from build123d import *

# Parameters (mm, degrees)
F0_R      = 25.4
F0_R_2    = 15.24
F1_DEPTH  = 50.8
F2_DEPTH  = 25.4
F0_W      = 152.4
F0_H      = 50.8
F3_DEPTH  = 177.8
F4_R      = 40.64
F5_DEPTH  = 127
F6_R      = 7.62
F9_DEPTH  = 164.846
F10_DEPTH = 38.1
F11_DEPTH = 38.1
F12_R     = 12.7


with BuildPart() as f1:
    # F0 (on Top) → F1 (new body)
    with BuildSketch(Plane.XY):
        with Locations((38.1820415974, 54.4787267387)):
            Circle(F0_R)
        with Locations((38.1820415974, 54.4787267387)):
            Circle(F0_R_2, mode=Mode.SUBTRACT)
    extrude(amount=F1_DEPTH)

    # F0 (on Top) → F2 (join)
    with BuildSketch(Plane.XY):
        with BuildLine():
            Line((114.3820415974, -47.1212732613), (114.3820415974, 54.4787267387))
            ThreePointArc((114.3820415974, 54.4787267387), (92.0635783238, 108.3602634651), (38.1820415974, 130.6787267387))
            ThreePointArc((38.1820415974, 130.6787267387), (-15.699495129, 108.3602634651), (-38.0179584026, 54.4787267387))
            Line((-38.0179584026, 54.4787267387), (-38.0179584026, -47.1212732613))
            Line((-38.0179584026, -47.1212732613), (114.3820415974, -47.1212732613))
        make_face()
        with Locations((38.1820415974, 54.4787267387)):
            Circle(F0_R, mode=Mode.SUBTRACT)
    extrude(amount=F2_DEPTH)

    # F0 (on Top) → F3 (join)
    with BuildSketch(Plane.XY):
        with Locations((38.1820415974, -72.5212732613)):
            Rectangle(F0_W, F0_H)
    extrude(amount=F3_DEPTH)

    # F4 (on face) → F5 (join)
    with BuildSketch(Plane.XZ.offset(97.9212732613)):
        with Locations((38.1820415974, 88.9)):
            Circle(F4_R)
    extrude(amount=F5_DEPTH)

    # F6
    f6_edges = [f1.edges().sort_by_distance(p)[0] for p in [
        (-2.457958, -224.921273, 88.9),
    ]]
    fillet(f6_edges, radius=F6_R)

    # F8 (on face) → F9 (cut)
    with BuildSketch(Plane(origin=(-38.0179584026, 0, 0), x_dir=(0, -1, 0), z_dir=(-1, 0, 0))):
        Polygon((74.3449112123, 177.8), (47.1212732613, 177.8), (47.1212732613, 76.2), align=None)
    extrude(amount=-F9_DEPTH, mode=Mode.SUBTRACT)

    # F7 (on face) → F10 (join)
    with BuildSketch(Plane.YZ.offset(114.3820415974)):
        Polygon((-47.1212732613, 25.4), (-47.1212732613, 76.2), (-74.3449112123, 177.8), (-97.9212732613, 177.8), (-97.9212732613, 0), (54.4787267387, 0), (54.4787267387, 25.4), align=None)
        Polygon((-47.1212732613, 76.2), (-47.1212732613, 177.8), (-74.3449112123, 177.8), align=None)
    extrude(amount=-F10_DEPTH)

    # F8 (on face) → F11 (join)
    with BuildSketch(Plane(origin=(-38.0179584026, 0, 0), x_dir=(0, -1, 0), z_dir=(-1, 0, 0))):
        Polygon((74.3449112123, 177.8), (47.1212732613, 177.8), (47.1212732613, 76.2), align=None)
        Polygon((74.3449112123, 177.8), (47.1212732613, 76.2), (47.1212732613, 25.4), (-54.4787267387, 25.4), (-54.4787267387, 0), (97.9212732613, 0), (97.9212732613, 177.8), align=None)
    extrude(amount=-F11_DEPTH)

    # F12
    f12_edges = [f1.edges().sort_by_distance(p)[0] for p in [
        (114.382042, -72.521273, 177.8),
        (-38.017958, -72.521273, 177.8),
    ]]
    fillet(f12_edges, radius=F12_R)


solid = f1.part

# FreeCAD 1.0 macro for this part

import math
import FreeCAD as App
import Part
import Sketcher

V = App.Vector
Q = App.Units.Quantity


def edges_at(feature, points):
    """Names of the edges that pass closest to the given points."""
    edges = feature.Shape.Edges
    near = lambda p: min(range(len(edges)), key=lambda i: edges[i].distToShape(Part.Vertex(*p))[0])
    return sorted({f"Edge{near(p) + 1}" for p in points})


def add_polygon(sketch, points):
    """Adds a closed chain of lines whose ends are joined by coincident constraints."""
    first, n = sketch.GeometryCount, len(points)
    for a, b in zip(points, points[1:] + points[:1]):
        sketch.addGeometry(Part.LineSegment(App.Vector(*a, 0), App.Vector(*b, 0)), False)
    for i in range(n):
        sketch.addConstraint(Sketcher.Constraint("Coincident", first + i, 2, first + (i + 1) % n, 1))

doc = App.newDocument("Part")
body = doc.addObject("PartDesign::Body", "Body")

# Sketch on XY plane
sketch1 = doc.addObject("Sketcher::SketchObject", "Sketch")
body.addObject(sketch1)
sketch1.AttachmentSupport = (doc.XY_Plane, [""])
sketch1.MapMode = "FlatFace"
sketch1.addGeometry([
    Part.Circle(V(38.182042, 54.478727, 0), V(0, 0, 1), 25.4),
    Part.Circle(V(38.182042, 54.478727, 0), V(0, 0, 1), 15.24),
], False)
sketch1.addConstraint([
    Sketcher.Constraint("Coincident", 1, 3, 0, 3),
    Sketcher.Constraint("Diameter", 0, Q("2 in")),
    Sketcher.Constraint("Diameter", 1, Q("1.2 in")),
    Sketcher.Constraint("DistanceX", -1, 1, 0, 3, Q("38.182042 mm")),
    Sketcher.Constraint("DistanceY", -1, 1, 0, 3, Q("54.478727 mm")),
])
pad1 = doc.addObject("PartDesign::Pad", "Pad")
body.addObject(pad1)
pad1.Profile = sketch1
pad1.Length = Q("2 in")

# Sketch on XY plane
sketch2 = doc.addObject("Sketcher::SketchObject", "Sketch001")
body.addObject(sketch2)
sketch2.AttachmentSupport = (doc.XY_Plane, [""])
sketch2.MapMode = "FlatFace"
sketch2.addGeometry([
    Part.LineSegment(V(114.382042, -47.121273, 0), V(114.382042, 54.478727, 0)),  # 0
    Part.ArcOfCircle(Part.Circle(V(38.182042, 54.478727, 0), V(0, 0, 1), 76.2), math.radians(0), math.radians(90)),  # 1
    Part.ArcOfCircle(Part.Circle(V(38.182042, 54.478727, 0), V(0, 0, 1), 76.2), math.radians(90), math.radians(180)),  # 2
    Part.LineSegment(V(-38.017958, 54.478727, 0), V(-38.017958, -47.121273, 0)),  # 3
    Part.LineSegment(V(-38.017958, -47.121273, 0), V(114.382042, -47.121273, 0)),  # 4
    Part.Circle(V(38.182042, 54.478727, 0), V(0, 0, 1), 25.4),  # 5
], False)
sketch2.addConstraint([
    Sketcher.Constraint("Tangent", 0, 2, 1, 1),
    Sketcher.Constraint("Tangent", 1, 2, 2, 1),
    Sketcher.Constraint("Tangent", 2, 2, 3, 1),
    Sketcher.Constraint("Coincident", 3, 2, 4, 1),
    Sketcher.Constraint("Coincident", 4, 2, 0, 1),
    Sketcher.Constraint("Vertical", 0),
    Sketcher.Constraint("Vertical", 3),
    Sketcher.Constraint("Horizontal", 4),
    Sketcher.Constraint("Coincident", 5, 3, 1, 3),
    Sketcher.Constraint("Equal", 1, 2),
    Sketcher.Constraint("Vertical", 5, 3, 1, 2),
    Sketcher.Constraint("Diameter", 5, Q("2 in")),
    Sketcher.Constraint("Radius", 1, Q("3 in")),
    Sketcher.Constraint("DistanceY", 0, 1, 0, 2, Q("4 in")),
    Sketcher.Constraint("DistanceX", -1, 1, 1, 3, Q("38.182042 mm")),
    Sketcher.Constraint("DistanceY", -1, 1, 1, 3, Q("54.478727 mm")),
])
pad2 = doc.addObject("PartDesign::Pad", "Pad001")
body.addObject(pad2)
pad2.Profile = sketch2
pad2.Length = Q("1 in")

# Sketch on XY plane
sketch3 = doc.addObject("Sketcher::SketchObject", "Sketch002")
body.addObject(sketch3)
sketch3.AttachmentSupport = (doc.XY_Plane, [""])
sketch3.MapMode = "FlatFace"
add_polygon(sketch3, [(-38.017958, -47.121273), (-38.017958, -97.921273), (114.382042, -97.921273), (114.382042, -47.121273)])  # lines 0-3
sketch3.addConstraint([
    Sketcher.Constraint("Vertical", 0),
    Sketcher.Constraint("Horizontal", 1),
    Sketcher.Constraint("Vertical", 2),
    Sketcher.Constraint("Horizontal", 3),
    Sketcher.Constraint("DistanceX", 1, 1, 1, 2, Q("6 in")),
    Sketcher.Constraint("DistanceY", 0, 2, 0, 1, Q("2 in")),
    Sketcher.Constraint("DistanceX", 0, 2, -1, 1, Q("38.017958 mm")),
    Sketcher.Constraint("DistanceY", 0, 2, -1, 1, Q("97.921273 mm")),
])
pad3 = doc.addObject("PartDesign::Pad", "Pad002")
body.addObject(pad3)
pad3.Profile = sketch3
pad3.Length = Q("7 in")

# Sketch on XZ plane
sketch4 = doc.addObject("Sketcher::SketchObject", "Sketch003")
body.addObject(sketch4)
sketch4.AttachmentSupport = (doc.XZ_Plane, [""])
sketch4.MapMode = "FlatFace"
sketch4.AttachmentOffset = App.Placement(V(0, 0, 97.921273), App.Rotation())
sketch4.addGeometry(Part.Circle(V(38.182042, 88.9, 0), V(0, 0, 1), 40.64), False)
sketch4.addConstraint([
    Sketcher.Constraint("Diameter", 0, Q("3.2 in")),
    Sketcher.Constraint("DistanceY", -1, 1, 0, 3, Q("3.5 in")),
    Sketcher.Constraint("DistanceX", -1, 1, 0, 3, Q("38.182042 mm")),
])
pad4 = doc.addObject("PartDesign::Pad", "Pad003")
body.addObject(pad4)
pad4.Profile = sketch4
pad4.Length = Q("5 in")
doc.recompute()

fillet = doc.addObject("PartDesign::Fillet", "Fillet")
body.addObject(fillet)
fillet.Base = (pad4, edges_at(pad4, [(-2.458, -224.921, 88.9)]))
fillet.Radius = Q("0.3 in")

# Sketch on YZ plane
sketch5 = doc.addObject("Sketcher::SketchObject", "Sketch004")
body.addObject(sketch5)
sketch5.AttachmentSupport = (doc.YZ_Plane, [""])
sketch5.MapMode = "FlatFace"
sketch5.AttachmentOffset = App.Placement(V(0, 0, -38.017958), App.Rotation())
add_polygon(sketch5, [(-74.344911, 177.8), (-47.121273, 177.8), (-47.121273, 76.2)])  # lines 0-2
sketch5.addConstraint([
    Sketcher.Constraint("Horizontal", 0),
    Sketcher.Constraint("Vertical", 1),
    Sketcher.Constraint("DistanceY", 1, 2, 1, 1, Q("4 in")),
    Sketcher.Constraint("DistanceY", -1, 1, 0, 2, Q("7 in")),
    Sketcher.Constraint("Angle", 2, Q("105 deg")),
    Sketcher.Constraint("DistanceX", 2, 2, -1, 1, Q("74.344911 mm")),
])
pocket1 = doc.addObject("PartDesign::Pocket", "Pocket")
body.addObject(pocket1)
pocket1.Profile = sketch5
pocket1.Length = Q("6.49 in")
pocket1.Reversed = True

# Sketch on YZ plane
sketch6 = doc.addObject("Sketcher::SketchObject", "Sketch005")
body.addObject(sketch6)
sketch6.AttachmentSupport = (doc.YZ_Plane, [""])
sketch6.MapMode = "FlatFace"
sketch6.AttachmentOffset = App.Placement(V(0, 0, 114.382042), App.Rotation())
add_polygon(sketch6, [(-47.121273, 25.4), (-47.121273, 177.8), (-97.921273, 177.8), (-97.921273, 0), (54.478727, 0), (54.478727, 25.4)])  # lines 0-5
sketch6.addConstraint([
    Sketcher.Constraint("Vertical", 0),
    Sketcher.Constraint("Horizontal", 1),
    Sketcher.Constraint("Vertical", 2),
    Sketcher.Constraint("Horizontal", 3),
    Sketcher.Constraint("Vertical", 4),
    Sketcher.Constraint("Horizontal", 5),
    Sketcher.Constraint("PointOnObject", 2, 2, -1),
    Sketcher.Constraint("Equal", 3, 0),
    Sketcher.Constraint("DistanceX", 1, 2, 1, 1, Q("2 in")),
    Sketcher.Constraint("DistanceX", 3, 1, 3, 2, Q("6 in")),
    Sketcher.Constraint("DistanceY", 2, 2, 2, 1, Q("7 in")),
    Sketcher.Constraint("DistanceX", 0, 2, -1, 1, Q("47.121273 mm")),
])
pad5 = doc.addObject("PartDesign::Pad", "Pad004")
body.addObject(pad5)
pad5.Profile = sketch6
pad5.Length = Q("1.5 in")
pad5.Reversed = True

# Sketch on YZ plane
sketch7 = doc.addObject("Sketcher::SketchObject", "Sketch006")
body.addObject(sketch7)
sketch7.AttachmentSupport = (doc.YZ_Plane, [""])
sketch7.MapMode = "FlatFace"
sketch7.AttachmentOffset = App.Placement(V(0, 0, -38.017958), App.Rotation())
add_polygon(sketch7, [(-47.121273, 177.8), (-47.121273, 25.4), (54.478727, 25.4), (54.478727, 0), (-97.921273, 0), (-97.921273, 177.8)])  # lines 0-5
sketch7.addConstraint([
    Sketcher.Constraint("Vertical", 0),
    Sketcher.Constraint("Horizontal", 1),
    Sketcher.Constraint("Vertical", 2),
    Sketcher.Constraint("Horizontal", 3),
    Sketcher.Constraint("Vertical", 4),
    Sketcher.Constraint("Horizontal", 5),
    Sketcher.Constraint("PointOnObject", 2, 2, -1),
    Sketcher.Constraint("Equal", 3, 0),
    Sketcher.Constraint("DistanceX", 1, 1, 1, 2, Q("4 in")),
    Sketcher.Constraint("DistanceX", 3, 2, 3, 1, Q("6 in")),
    Sketcher.Constraint("DistanceY", 2, 2, 2, 1, Q("1 in")),
    Sketcher.Constraint("DistanceX", 0, 2, -1, 1, Q("47.121273 mm")),
])
pad6 = doc.addObject("PartDesign::Pad", "Pad005")
body.addObject(pad6)
pad6.Profile = sketch7
pad6.Length = Q("1.5 in")
doc.recompute()

fillet2 = doc.addObject("PartDesign::Fillet", "Fillet001")
body.addObject(fillet2)
fillet2.Base = (pad6, edges_at(pad6, [(114.382, -72.521, 177.8), (-38.018, -72.521, 177.8)]))
fillet2.Radius = Q("0.5 in")

doc.recompute()
